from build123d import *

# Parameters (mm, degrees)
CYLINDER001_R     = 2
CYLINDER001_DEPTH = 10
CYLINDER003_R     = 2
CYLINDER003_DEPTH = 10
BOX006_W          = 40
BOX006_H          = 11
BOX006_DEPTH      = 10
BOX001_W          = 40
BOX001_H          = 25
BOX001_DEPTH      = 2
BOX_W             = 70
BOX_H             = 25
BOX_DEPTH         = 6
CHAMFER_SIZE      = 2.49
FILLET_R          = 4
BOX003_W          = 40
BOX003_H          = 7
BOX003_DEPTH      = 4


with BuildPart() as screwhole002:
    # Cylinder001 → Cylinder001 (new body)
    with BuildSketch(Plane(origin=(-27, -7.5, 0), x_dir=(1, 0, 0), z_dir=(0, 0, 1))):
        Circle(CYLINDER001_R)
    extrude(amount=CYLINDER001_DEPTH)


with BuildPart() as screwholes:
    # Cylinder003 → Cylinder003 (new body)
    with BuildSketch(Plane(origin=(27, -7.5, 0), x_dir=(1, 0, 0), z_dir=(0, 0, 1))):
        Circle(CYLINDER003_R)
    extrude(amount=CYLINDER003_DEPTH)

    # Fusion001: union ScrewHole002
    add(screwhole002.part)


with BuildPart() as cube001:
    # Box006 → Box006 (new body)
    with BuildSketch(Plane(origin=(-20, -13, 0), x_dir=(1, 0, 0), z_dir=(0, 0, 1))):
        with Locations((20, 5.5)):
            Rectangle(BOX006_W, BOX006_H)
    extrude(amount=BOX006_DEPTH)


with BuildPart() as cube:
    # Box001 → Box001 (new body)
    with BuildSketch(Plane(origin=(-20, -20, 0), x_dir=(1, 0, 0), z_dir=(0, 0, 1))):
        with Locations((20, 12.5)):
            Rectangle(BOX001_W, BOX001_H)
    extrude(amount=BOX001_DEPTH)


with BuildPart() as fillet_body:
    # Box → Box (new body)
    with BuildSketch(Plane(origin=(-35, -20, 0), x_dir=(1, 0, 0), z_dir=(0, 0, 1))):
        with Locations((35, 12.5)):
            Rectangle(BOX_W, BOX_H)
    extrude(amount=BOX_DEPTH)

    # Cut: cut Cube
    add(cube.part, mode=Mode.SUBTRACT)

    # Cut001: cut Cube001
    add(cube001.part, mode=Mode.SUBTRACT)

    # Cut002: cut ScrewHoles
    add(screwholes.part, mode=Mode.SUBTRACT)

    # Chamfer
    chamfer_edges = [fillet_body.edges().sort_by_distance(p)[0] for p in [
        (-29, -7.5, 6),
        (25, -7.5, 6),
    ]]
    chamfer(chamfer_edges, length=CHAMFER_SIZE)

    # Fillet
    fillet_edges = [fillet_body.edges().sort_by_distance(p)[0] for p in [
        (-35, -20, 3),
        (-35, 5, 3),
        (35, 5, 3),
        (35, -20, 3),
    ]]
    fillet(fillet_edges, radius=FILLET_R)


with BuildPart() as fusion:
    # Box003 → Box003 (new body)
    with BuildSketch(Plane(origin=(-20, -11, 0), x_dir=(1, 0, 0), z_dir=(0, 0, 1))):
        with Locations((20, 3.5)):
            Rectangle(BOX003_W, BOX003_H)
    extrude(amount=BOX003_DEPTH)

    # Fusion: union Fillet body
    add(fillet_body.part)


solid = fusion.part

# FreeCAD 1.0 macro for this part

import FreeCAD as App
import Part
import Sketcher
from FreeCAD import Vector


def edges_at(feature, points):
    """Names of the edges that pass closest to the given points."""
    edges = feature.Shape.Edges
    near = lambda p: min(range(len(edges)), key=lambda i: edges[i].distToShape(Part.Vertex(*p))[0])
    return sorted({f"Edge{near(p) + 1}" for p in points})


def add_polygon(sketch, points):
    """Adds a closed chain of lines whose ends are joined by coincident constraints."""
    first, n = sketch.GeometryCount, len(points)
    for a, b in zip(points, points[1:] + points[:1]):
        sketch.addGeometry(Part.LineSegment(App.Vector(*a, 0), App.Vector(*b, 0)), False)
    for i in range(n):
        sketch.addConstraint(Sketcher.Constraint("Coincident", first + i, 2, first + (i + 1) % n, 1))

doc = App.newDocument("Part")
body = doc.addObject("PartDesign::Body", "Body")

# Sketch on XY plane
sketch1 = doc.addObject("Sketcher::SketchObject", "Sketch")
body.addObject(sketch1)
sketch1.AttachmentSupport = (doc.XY_Plane, [""])
sketch1.MapMode = "FlatFace"
sketch1.addGeometry(Part.Circle(Vector(-27, -7.5, 0), Vector(0, 0, 1), 2), False)
sketch1.addConstraint([
    Sketcher.Constraint("Diameter", 0, 4.0),
    Sketcher.Constraint("DistanceX", 0, 3, -1, 1, 27.0),
    Sketcher.Constraint("DistanceY", 0, 3, -1, 1, 7.5),
])
pad1 = doc.addObject("PartDesign::Pad", "Pad")
body.addObject(pad1)
pad1.Profile = sketch1
pad1.Length = 10
body2 = doc.addObject("PartDesign::Body", "Body001")
body2.AllowCompound = True

# Sketch on XY plane
sketch2 = doc.addObject("Sketcher::SketchObject", "Sketch001")
body2.addObject(sketch2)
sketch2.AttachmentSupport = (doc.getObject("XY_Plane001"), [""])
sketch2.MapMode = "FlatFace"
sketch2.addGeometry(Part.Circle(Vector(27, -7.5, 0), Vector(0, 0, 1), 2), False)
sketch2.addConstraint([
    Sketcher.Constraint("Diameter", 0, 4.0),
    Sketcher.Constraint("DistanceX", -1, 1, 0, 3, 27.0),
    Sketcher.Constraint("DistanceY", 0, 3, -1, 1, 7.5),
])
pad2 = doc.addObject("PartDesign::Pad", "Pad001")
body2.addObject(pad2)
pad2.Profile = sketch2
pad2.Length = 10
doc.recompute()

boolean = doc.addObject("PartDesign::Boolean", "Boolean")
body2.addObject(boolean)
boolean.Type = "Fuse"
boolean.addObjects([body])
body3 = doc.addObject("PartDesign::Body", "Body002")

# Sketch on XY plane
sketch3 = doc.addObject("Sketcher::SketchObject", "Sketch002")
body3.addObject(sketch3)
sketch3.AttachmentSupport = (doc.getObject("XY_Plane002"), [""])
sketch3.MapMode = "FlatFace"
add_polygon(sketch3, [(-20, -2), (-20, -13), (20, -13), (20, -2)])  # lines 0-3
sketch3.addConstraint([
    Sketcher.Constraint("Vertical", 0),
    Sketcher.Constraint("Horizontal", 1),
    Sketcher.Constraint("Vertical", 2),
    Sketcher.Constraint("Horizontal", 3),
    Sketcher.Constraint("DistanceX", 1, 1, 1, 2, 40.0),
    Sketcher.Constraint("DistanceY", 0, 2, 0, 1, 11.0),
    Sketcher.Constraint("DistanceX", 0, 2, -1, 1, 20.0),
    Sketcher.Constraint("DistanceY", 0, 2, -1, 1, 13.0),
])
pad3 = doc.addObject("PartDesign::Pad", "Pad002")
body3.addObject(pad3)
pad3.Profile = sketch3
pad3.Length = 10
body4 = doc.addObject("PartDesign::Body", "Body003")

# Sketch on XY plane
sketch4 = doc.addObject("Sketcher::SketchObject", "Sketch003")
body4.addObject(sketch4)
sketch4.AttachmentSupport = (doc.getObject("XY_Plane003"), [""])
sketch4.MapMode = "FlatFace"
add_polygon(sketch4, [(-20, 5), (-20, -20), (20, -20), (20, 5)])  # lines 0-3
sketch4.addConstraint([
    Sketcher.Constraint("Vertical", 0),
    Sketcher.Constraint("Horizontal", 1),
    Sketcher.Constraint("Vertical", 2),
    Sketcher.Constraint("Horizontal", 3),
    Sketcher.Constraint("DistanceX", 1, 1, 1, 2, 40.0),
    Sketcher.Constraint("DistanceY", 0, 2, 0, 1, 25.0),
    Sketcher.Constraint("DistanceX", 0, 2, -1, 1, 20.0),
    Sketcher.Constraint("DistanceY", 0, 2, -1, 1, 20.0),
])
pad4 = doc.addObject("PartDesign::Pad", "Pad003")
body4.addObject(pad4)
pad4.Profile = sketch4
pad4.Length = 2
body5 = doc.addObject("PartDesign::Body", "Body004")

# Sketch on XY plane
sketch5 = doc.addObject("Sketcher::SketchObject", "Sketch004")
body5.addObject(sketch5)
sketch5.AttachmentSupport = (doc.getObject("XY_Plane004"), [""])
sketch5.MapMode = "FlatFace"
add_polygon(sketch5, [(-35, 5), (-35, -20), (35, -20), (35, 5)])  # lines 0-3
sketch5.addConstraint([
    Sketcher.Constraint("Vertical", 0),
    Sketcher.Constraint("Horizontal", 1),
    Sketcher.Constraint("Vertical", 2),
    Sketcher.Constraint("Horizontal", 3),
    Sketcher.Constraint("DistanceX", 1, 1, 1, 2, 70.0),
    Sketcher.Constraint("DistanceY", 0, 2, 0, 1, 25.0),
    Sketcher.Constraint("DistanceX", 0, 2, -1, 1, 35.0),
    Sketcher.Constraint("DistanceY", 0, 2, -1, 1, 20.0),
])
pad5 = doc.addObject("PartDesign::Pad", "Pad004")
body5.addObject(pad5)
pad5.Profile = sketch5
pad5.Length = 6
doc.recompute()

boolean2 = doc.addObject("PartDesign::Boolean", "Boolean001")
body5.addObject(boolean2)
boolean2.Type = "Cut"
boolean2.addObjects([body4])
doc.recompute()

boolean3 = doc.addObject("PartDesign::Boolean", "Boolean002")
body5.addObject(boolean3)
boolean3.Type = "Cut"
boolean3.addObjects([body3])
doc.recompute()

boolean4 = doc.addObject("PartDesign::Boolean", "Boolean003")
body5.addObject(boolean4)
boolean4.Type = "Cut"
boolean4.addObjects([body2])
doc.recompute()

chamfer = doc.addObject("PartDesign::Chamfer", "Chamfer")
body5.addObject(chamfer)
chamfer.Base = (boolean4, edges_at(boolean4, [(-29, -7.5, 6), (25, -7.5, 6)]))
chamfer.Size = 2.49
doc.recompute()

fillet = doc.addObject("PartDesign::Fillet", "Fillet")
body5.addObject(fillet)
fillet.Base = (chamfer, edges_at(chamfer, [
    (-35, -20, 3),
    (-35, 5, 3),
    (35, 5, 3),
    (35, -20, 3),
]))
fillet.Radius = 4
body6 = doc.addObject("PartDesign::Body", "Body005")

# Sketch on XY plane
sketch6 = doc.addObject("Sketcher::SketchObject", "Sketch005")
body6.addObject(sketch6)
sketch6.AttachmentSupport = (doc.getObject("XY_Plane005"), [""])
sketch6.MapMode = "FlatFace"
add_polygon(sketch6, [(-20, -4), (-20, -11), (20, -11), (20, -4)])  # lines 0-3
sketch6.addConstraint([
    Sketcher.Constraint("Vertical", 0),
    Sketcher.Constraint("Horizontal", 1),
    Sketcher.Constraint("Vertical", 2),
    Sketcher.Constraint("Horizontal", 3),
    Sketcher.Constraint("DistanceX", 1, 1, 1, 2, 40.0),
    Sketcher.Constraint("DistanceY", 0, 2, 0, 1, 7.0),
    Sketcher.Constraint("DistanceX", 0, 2, -1, 1, 20.0),
    Sketcher.Constraint("DistanceY", 0, 2, -1, 1, 11.0),
])
pad6 = doc.addObject("PartDesign::Pad", "Pad005")
body6.addObject(pad6)
pad6.Profile = sketch6
pad6.Length = 4
doc.recompute()

boolean5 = doc.addObject("PartDesign::Boolean", "Boolean004")
body6.addObject(boolean5)
boolean5.Type = "Fuse"
boolean5.addObjects([body5])

doc.recompute()
